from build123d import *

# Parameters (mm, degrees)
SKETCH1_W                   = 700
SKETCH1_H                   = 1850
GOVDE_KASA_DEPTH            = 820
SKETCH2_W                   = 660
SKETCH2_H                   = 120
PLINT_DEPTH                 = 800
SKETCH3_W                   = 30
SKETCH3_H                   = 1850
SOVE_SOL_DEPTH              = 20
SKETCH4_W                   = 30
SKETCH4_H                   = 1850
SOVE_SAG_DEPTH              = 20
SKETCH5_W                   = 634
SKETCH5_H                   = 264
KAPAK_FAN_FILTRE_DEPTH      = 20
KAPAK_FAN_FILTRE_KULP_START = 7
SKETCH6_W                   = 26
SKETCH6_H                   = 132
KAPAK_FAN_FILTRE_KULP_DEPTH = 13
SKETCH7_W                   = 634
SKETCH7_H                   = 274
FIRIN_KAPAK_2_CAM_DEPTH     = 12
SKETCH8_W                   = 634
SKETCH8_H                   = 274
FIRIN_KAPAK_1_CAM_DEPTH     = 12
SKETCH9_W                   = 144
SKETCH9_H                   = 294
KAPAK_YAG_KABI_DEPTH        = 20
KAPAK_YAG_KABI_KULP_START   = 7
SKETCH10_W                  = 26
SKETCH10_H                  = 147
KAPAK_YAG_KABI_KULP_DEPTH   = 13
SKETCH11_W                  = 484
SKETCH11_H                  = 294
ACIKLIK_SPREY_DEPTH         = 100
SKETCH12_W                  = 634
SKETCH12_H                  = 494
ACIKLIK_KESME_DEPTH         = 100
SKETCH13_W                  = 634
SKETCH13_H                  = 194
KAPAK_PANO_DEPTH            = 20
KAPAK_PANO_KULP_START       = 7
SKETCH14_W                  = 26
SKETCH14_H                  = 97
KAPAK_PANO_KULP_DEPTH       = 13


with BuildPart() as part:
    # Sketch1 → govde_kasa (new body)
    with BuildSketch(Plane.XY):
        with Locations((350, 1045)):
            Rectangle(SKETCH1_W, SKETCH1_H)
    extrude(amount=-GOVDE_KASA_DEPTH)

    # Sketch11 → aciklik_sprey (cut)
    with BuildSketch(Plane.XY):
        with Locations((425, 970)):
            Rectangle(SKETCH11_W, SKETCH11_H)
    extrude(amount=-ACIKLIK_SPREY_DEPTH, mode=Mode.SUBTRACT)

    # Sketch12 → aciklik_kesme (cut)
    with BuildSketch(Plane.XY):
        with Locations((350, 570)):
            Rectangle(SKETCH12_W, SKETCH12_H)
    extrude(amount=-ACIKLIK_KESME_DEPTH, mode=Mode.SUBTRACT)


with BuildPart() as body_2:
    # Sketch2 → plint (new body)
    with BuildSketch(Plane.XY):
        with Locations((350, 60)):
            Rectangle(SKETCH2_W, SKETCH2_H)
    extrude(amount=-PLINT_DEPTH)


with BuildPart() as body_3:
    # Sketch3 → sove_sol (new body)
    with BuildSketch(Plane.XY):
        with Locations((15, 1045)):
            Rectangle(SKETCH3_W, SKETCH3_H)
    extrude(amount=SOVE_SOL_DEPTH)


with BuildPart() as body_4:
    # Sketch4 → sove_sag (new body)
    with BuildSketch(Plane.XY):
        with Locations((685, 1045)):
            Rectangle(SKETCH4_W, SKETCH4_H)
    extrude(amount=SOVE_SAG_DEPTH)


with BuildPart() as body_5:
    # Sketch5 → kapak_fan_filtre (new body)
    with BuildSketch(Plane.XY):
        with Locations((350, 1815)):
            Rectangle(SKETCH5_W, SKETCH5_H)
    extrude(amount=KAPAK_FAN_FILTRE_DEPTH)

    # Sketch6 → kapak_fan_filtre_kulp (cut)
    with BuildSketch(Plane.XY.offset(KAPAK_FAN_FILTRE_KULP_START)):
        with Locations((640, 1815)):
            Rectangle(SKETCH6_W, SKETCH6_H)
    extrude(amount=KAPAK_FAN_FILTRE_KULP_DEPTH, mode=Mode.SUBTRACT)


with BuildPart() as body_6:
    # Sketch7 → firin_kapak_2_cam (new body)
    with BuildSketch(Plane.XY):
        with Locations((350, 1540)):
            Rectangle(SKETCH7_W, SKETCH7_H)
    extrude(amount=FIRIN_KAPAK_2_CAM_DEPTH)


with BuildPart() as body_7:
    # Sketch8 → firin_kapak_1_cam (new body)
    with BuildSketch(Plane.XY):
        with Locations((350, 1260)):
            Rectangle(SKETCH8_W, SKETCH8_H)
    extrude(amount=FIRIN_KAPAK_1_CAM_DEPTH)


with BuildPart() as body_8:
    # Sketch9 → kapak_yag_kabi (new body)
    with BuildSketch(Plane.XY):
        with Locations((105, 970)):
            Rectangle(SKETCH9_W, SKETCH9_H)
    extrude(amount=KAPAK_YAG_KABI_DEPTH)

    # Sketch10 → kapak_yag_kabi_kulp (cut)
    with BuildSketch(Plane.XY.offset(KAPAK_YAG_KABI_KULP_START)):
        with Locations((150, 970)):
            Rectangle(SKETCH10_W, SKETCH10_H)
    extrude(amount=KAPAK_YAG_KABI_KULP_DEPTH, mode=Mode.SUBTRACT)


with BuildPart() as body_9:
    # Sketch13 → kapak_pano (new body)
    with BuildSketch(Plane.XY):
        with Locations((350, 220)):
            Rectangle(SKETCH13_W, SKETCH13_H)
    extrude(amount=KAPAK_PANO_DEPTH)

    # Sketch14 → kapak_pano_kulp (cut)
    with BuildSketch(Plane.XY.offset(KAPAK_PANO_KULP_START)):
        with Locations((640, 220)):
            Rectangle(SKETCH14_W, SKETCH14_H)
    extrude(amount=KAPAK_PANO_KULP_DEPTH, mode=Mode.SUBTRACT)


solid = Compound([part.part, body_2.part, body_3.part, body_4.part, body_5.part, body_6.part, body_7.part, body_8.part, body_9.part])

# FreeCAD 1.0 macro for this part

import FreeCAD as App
import Part
import Sketcher

V = App.Vector

doc = App.newDocument("Part")
params = doc.addObject("Spreadsheet::Sheet", "Params")
for row, (alias, value) in enumerate([
    ("sketch1_width", "700 mm"),
    ("sketch1_height", "1850 mm"),
    ("pad1_length", "820 mm"),
    ("sketch2_width", "484 mm"),
    ("sketch2_height", "294 mm"),
    ("pocket1_length", "100 mm"),
    ("sketch3_width", "634 mm"),
    ("sketch3_height", "494 mm"),
    ("pocket2_length", "100 mm"),
    ("sketch4_width", "660 mm"),
    ("sketch4_height", "120 mm"),
    ("pad2_length", "800 mm"),
    ("sketch5_width", "30 mm"),
    ("sketch5_height", "1850 mm"),
    ("pad3_length", "20 mm"),
    ("sketch6_width", "30 mm"),
    ("sketch6_height", "1850 mm"),
    ("pad4_length", "20 mm"),
    ("sketch7_width", "634 mm"),
    ("sketch7_height", "264 mm"),
    ("pad5_length", "20 mm"),
    ("sketch8_width", "26 mm"),
    ("sketch8_height", "132 mm"),
    ("pocket3_length", "13 mm"),
    ("sketch9_width", "634 mm"),
    ("sketch9_height", "274 mm"),
    ("pad6_length", "12 mm"),
    ("sketch10_width", "634 mm"),
    ("sketch10_height", "274 mm"),
    ("pad7_length", "12 mm"),
    ("sketch11_width", "144 mm"),
    ("sketch11_height", "294 mm"),
    ("pad8_length", "20 mm"),
    ("sketch12_width", "26 mm"),
    ("sketch12_height", "147 mm"),
    ("pocket4_length", "13 mm"),
    ("sketch13_width", "634 mm"),
    ("sketch13_height", "194 mm"),
    ("pad9_length", "20 mm"),
    ("sketch14_width", "26 mm"),
    ("sketch14_height", "97 mm"),
    ("pocket5_length", "13 mm"),
], start=1):
    params.set(f"A{row}", alias)
    params.set(f"B{row}", "=" + value)
    params.setAlias(f"B{row}", alias)

body = doc.addObject("PartDesign::Body", "Body")

# Sketch on XY plane
sketch1 = doc.addObject("Sketcher::SketchObject", "Sketch")
body.addObject(sketch1)
sketch1.AttachmentSupport = (doc.XY_Plane, [""])
sketch1.MapMode = "FlatFace"
sketch1.addGeometry(Part.LineSegment(V(0, 1970, 0), V(0, 120, 0)), False)
sketch1.addGeometry(Part.LineSegment(V(0, 120, 0), V(700, 120, 0)), False)
sketch1.addGeometry(Part.LineSegment(V(700, 120, 0), V(700, 1970, 0)), False)
sketch1.addGeometry(Part.LineSegment(V(700, 1970, 0), V(0, 1970, 0)), False)
sketch1.addConstraint(Sketcher.Constraint("Coincident", 0, 2, 1, 1))
sketch1.addConstraint(Sketcher.Constraint("Coincident", 1, 2, 2, 1))
sketch1.addConstraint(Sketcher.Constraint("Coincident", 2, 2, 3, 1))
sketch1.addConstraint(Sketcher.Constraint("Coincident", 3, 2, 0, 1))
sketch1.addConstraint(Sketcher.Constraint("Vertical", 0))
sketch1.addConstraint(Sketcher.Constraint("Horizontal", 1))
sketch1.addConstraint(Sketcher.Constraint("Vertical", 2))
sketch1.addConstraint(Sketcher.Constraint("Horizontal", 3))
sketch1.addConstraint(Sketcher.Constraint("PointOnObject", 0, 2, -2))
sketch1.addConstraint(Sketcher.Constraint("DistanceX", 1, 1, 1, 2, 700.0))
sketch1.addConstraint(Sketcher.Constraint("DistanceY", 0, 2, 0, 1, 1850.0))
sketch1.addConstraint(Sketcher.Constraint("DistanceY", -1, 1, 0, 2, 120.0))
sketch1.setExpression("Constraints[9]", "Params.sketch1_width")
sketch1.setExpression("Constraints[10]", "Params.sketch1_height")
pad1 = doc.addObject("PartDesign::Pad", "Pad")
body.addObject(pad1)
pad1.Profile = sketch1
pad1.setExpression("Length", "Params.pad1_length")
pad1.Reversed = True

# Sketch on XY plane
sketch2 = doc.addObject("Sketcher::SketchObject", "Sketch001")
body.addObject(sketch2)
sketch2.AttachmentSupport = (doc.XY_Plane, [""])
sketch2.MapMode = "FlatFace"
sketch2.addGeometry(Part.LineSegment(V(183, 1117, 0), V(183, 823, 0)), False)
sketch2.addGeometry(Part.LineSegment(V(183, 823, 0), V(667, 823, 0)), False)
sketch2.addGeometry(Part.LineSegment(V(667, 823, 0), V(667, 1117, 0)), False)
sketch2.addGeometry(Part.LineSegment(V(667, 1117, 0), V(183, 1117, 0)), False)
sketch2.addConstraint(Sketcher.Constraint("Coincident", 0, 2, 1, 1))
sketch2.addConstraint(Sketcher.Constraint("Coincident", 1, 2, 2, 1))
sketch2.addConstraint(Sketcher.Constraint("Coincident", 2, 2, 3, 1))
sketch2.addConstraint(Sketcher.Constraint("Coincident", 3, 2, 0, 1))
sketch2.addConstraint(Sketcher.Constraint("Vertical", 0))
sketch2.addConstraint(Sketcher.Constraint("Horizontal", 1))
sketch2.addConstraint(Sketcher.Constraint("Vertical", 2))
sketch2.addConstraint(Sketcher.Constraint("Horizontal", 3))
sketch2.addConstraint(Sketcher.Constraint("DistanceX", 1, 1, 1, 2, 484.0))
sketch2.addConstraint(Sketcher.Constraint("DistanceY", 0, 2, 0, 1, 294.0))
sketch2.addConstraint(Sketcher.Constraint("DistanceX", -1, 1, 0, 2, 183.0))
sketch2.addConstraint(Sketcher.Constraint("DistanceY", -1, 1, 0, 2, 823.0))
sketch2.setExpression("Constraints[8]", "Params.sketch2_width")
sketch2.setExpression("Constraints[9]", "Params.sketch2_height")
pocket1 = doc.addObject("PartDesign::Pocket", "Pocket")
body.addObject(pocket1)
pocket1.Profile = sketch2
pocket1.setExpression("Length", "Params.pocket1_length")

# Sketch on XY plane
sketch3 = doc.addObject("Sketcher::SketchObject", "Sketch002")
body.addObject(sketch3)
sketch3.AttachmentSupport = (doc.XY_Plane, [""])
sketch3.MapMode = "FlatFace"
sketch3.addGeometry(Part.LineSegment(V(33, 817, 0), V(33, 323, 0)), False)
sketch3.addGeometry(Part.LineSegment(V(33, 323, 0), V(667, 323, 0)), False)
sketch3.addGeometry(Part.LineSegment(V(667, 323, 0), V(667, 817, 0)), False)
sketch3.addGeometry(Part.LineSegment(V(667, 817, 0), V(33, 817, 0)), False)
sketch3.addConstraint(Sketcher.Constraint("Coincident", 0, 2, 1, 1))
sketch3.addConstraint(Sketcher.Constraint("Coincident", 1, 2, 2, 1))
sketch3.addConstraint(Sketcher.Constraint("Coincident", 2, 2, 3, 1))
sketch3.addConstraint(Sketcher.Constraint("Coincident", 3, 2, 0, 1))
sketch3.addConstraint(Sketcher.Constraint("Vertical", 0))
sketch3.addConstraint(Sketcher.Constraint("Horizontal", 1))
sketch3.addConstraint(Sketcher.Constraint("Vertical", 2))
sketch3.addConstraint(Sketcher.Constraint("Horizontal", 3))
sketch3.addConstraint(Sketcher.Constraint("DistanceX", 1, 1, 1, 2, 634.0))
sketch3.addConstraint(Sketcher.Constraint("DistanceY", 0, 2, 0, 1, 494.0))
sketch3.addConstraint(Sketcher.Constraint("DistanceX", -1, 1, 0, 2, 33.0))
sketch3.addConstraint(Sketcher.Constraint("DistanceY", -1, 1, 0, 2, 323.0))
sketch3.setExpression("Constraints[8]", "Params.sketch3_width")
sketch3.setExpression("Constraints[9]", "Params.sketch3_height")
pocket2 = doc.addObject("PartDesign::Pocket", "Pocket001")
body.addObject(pocket2)
pocket2.Profile = sketch3
pocket2.setExpression("Length", "Params.pocket2_length")
body2 = doc.addObject("PartDesign::Body", "Body001")

# Sketch on XY plane
sketch4 = doc.addObject("Sketcher::SketchObject", "Sketch003")
body2.addObject(sketch4)
sketch4.AttachmentSupport = (doc.getObject("XY_Plane001"), [""])
sketch4.MapMode = "FlatFace"
sketch4.addGeometry(Part.LineSegment(V(20, 120, 0), V(20, 0, 0)), False)
sketch4.addGeometry(Part.LineSegment(V(20, 0, 0), V(680, 0, 0)), False)
sketch4.addGeometry(Part.LineSegment(V(680, 0, 0), V(680, 120, 0)), False)
sketch4.addGeometry(Part.LineSegment(V(680, 120, 0), V(20, 120, 0)), False)
sketch4.addConstraint(Sketcher.Constraint("Coincident", 0, 2, 1, 1))
sketch4.addConstraint(Sketcher.Constraint("Coincident", 1, 2, 2, 1))
sketch4.addConstraint(Sketcher.Constraint("Coincident", 2, 2, 3, 1))
sketch4.addConstraint(Sketcher.Constraint("Coincident", 3, 2, 0, 1))
sketch4.addConstraint(Sketcher.Constraint("Vertical", 0))
sketch4.addConstraint(Sketcher.Constraint("Horizontal", 1))
sketch4.addConstraint(Sketcher.Constraint("Vertical", 2))
sketch4.addConstraint(Sketcher.Constraint("Horizontal", 3))
sketch4.addConstraint(Sketcher.Constraint("PointOnObject", 0, 2, -1))
sketch4.addConstraint(Sketcher.Constraint("DistanceX", 1, 1, 1, 2, 660.0))
sketch4.addConstraint(Sketcher.Constraint("DistanceY", 0, 2, 0, 1, 120.0))
sketch4.addConstraint(Sketcher.Constraint("DistanceX", -1, 1, 0, 2, 20.0))
sketch4.setExpression("Constraints[9]", "Params.sketch4_width")
sketch4.setExpression("Constraints[10]", "Params.sketch4_height")
pad2 = doc.addObject("PartDesign::Pad", "Pad001")
body2.addObject(pad2)
pad2.Profile = sketch4
pad2.setExpression("Length", "Params.pad2_length")
pad2.Reversed = True
body3 = doc.addObject("PartDesign::Body", "Body002")

# Sketch on XY plane
sketch5 = doc.addObject("Sketcher::SketchObject", "Sketch004")
body3.addObject(sketch5)
sketch5.AttachmentSupport = (doc.getObject("XY_Plane002"), [""])
sketch5.MapMode = "FlatFace"
sketch5.addGeometry(Part.LineSegment(V(0, 1970, 0), V(0, 120, 0)), False)
sketch5.addGeometry(Part.LineSegment(V(0, 120, 0), V(30, 120, 0)), False)
sketch5.addGeometry(Part.LineSegment(V(30, 120, 0), V(30, 1970, 0)), False)
sketch5.addGeometry(Part.LineSegment(V(30, 1970, 0), V(0, 1970, 0)), False)
sketch5.addConstraint(Sketcher.Constraint("Coincident", 0, 2, 1, 1))
sketch5.addConstraint(Sketcher.Constraint("Coincident", 1, 2, 2, 1))
sketch5.addConstraint(Sketcher.Constraint("Coincident", 2, 2, 3, 1))
sketch5.addConstraint(Sketcher.Constraint("Coincident", 3, 2, 0, 1))
sketch5.addConstraint(Sketcher.Constraint("Vertical", 0))
sketch5.addConstraint(Sketcher.Constraint("Horizontal", 1))
sketch5.addConstraint(Sketcher.Constraint("Vertical", 2))
sketch5.addConstraint(Sketcher.Constraint("Horizontal", 3))
sketch5.addConstraint(Sketcher.Constraint("PointOnObject", 0, 2, -2))
sketch5.addConstraint(Sketcher.Constraint("DistanceX", 1, 1, 1, 2, 30.0))
sketch5.addConstraint(Sketcher.Constraint("DistanceY", 0, 2, 0, 1, 1850.0))
sketch5.addConstraint(Sketcher.Constraint("DistanceY", -1, 1, 0, 2, 120.0))
sketch5.setExpression("Constraints[9]", "Params.sketch5_width")
sketch5.setExpression("Constraints[10]", "Params.sketch5_height")
pad3 = doc.addObject("PartDesign::Pad", "Pad002")
body3.addObject(pad3)
pad3.Profile = sketch5
pad3.setExpression("Length", "Params.pad3_length")
body4 = doc.addObject("PartDesign::Body", "Body003")

# Sketch on XY plane
sketch6 = doc.addObject("Sketcher::SketchObject", "Sketch005")
body4.addObject(sketch6)
sketch6.AttachmentSupport = (doc.getObject("XY_Plane003"), [""])
sketch6.MapMode = "FlatFace"
sketch6.addGeometry(Part.LineSegment(V(670, 1970, 0), V(670, 120, 0)), False)
sketch6.addGeometry(Part.LineSegment(V(670, 120, 0), V(700, 120, 0)), False)
sketch6.addGeometry(Part.LineSegment(V(700, 120, 0), V(700, 1970, 0)), False)
sketch6.addGeometry(Part.LineSegment(V(700, 1970, 0), V(670, 1970, 0)), False)
sketch6.addConstraint(Sketcher.Constraint("Coincident", 0, 2, 1, 1))
sketch6.addConstraint(Sketcher.Constraint("Coincident", 1, 2, 2, 1))
sketch6.addConstraint(Sketcher.Constraint("Coincident", 2, 2, 3, 1))
sketch6.addConstraint(Sketcher.Constraint("Coincident", 3, 2, 0, 1))
sketch6.addConstraint(Sketcher.Constraint("Vertical", 0))
sketch6.addConstraint(Sketcher.Constraint("Horizontal", 1))
sketch6.addConstraint(Sketcher.Constraint("Vertical", 2))
sketch6.addConstraint(Sketcher.Constraint("Horizontal", 3))
sketch6.addConstraint(Sketcher.Constraint("DistanceX", 1, 1, 1, 2, 30.0))
sketch6.addConstraint(Sketcher.Constraint("DistanceY", 0, 2, 0, 1, 1850.0))
sketch6.addConstraint(Sketcher.Constraint("DistanceX", -1, 1, 0, 2, 670.0))
sketch6.addConstraint(Sketcher.Constraint("DistanceY", -1, 1, 0, 2, 120.0))
sketch6.setExpression("Constraints[8]", "Params.sketch6_width")
sketch6.setExpression("Constraints[9]", "Params.sketch6_height")
pad4 = doc.addObject("PartDesign::Pad", "Pad003")
body4.addObject(pad4)
pad4.Profile = sketch6
pad4.setExpression("Length", "Params.pad4_length")
body5 = doc.addObject("PartDesign::Body", "Body004")

# Sketch on XY plane
sketch7 = doc.addObject("Sketcher::SketchObject", "Sketch006")
body5.addObject(sketch7)
sketch7.AttachmentSupport = (doc.getObject("XY_Plane004"), [""])
sketch7.MapMode = "FlatFace"
sketch7.addGeometry(Part.LineSegment(V(33, 1947, 0), V(33, 1683, 0)), False)
sketch7.addGeometry(Part.LineSegment(V(33, 1683, 0), V(667, 1683, 0)), False)
sketch7.addGeometry(Part.LineSegment(V(667, 1683, 0), V(667, 1947, 0)), False)
sketch7.addGeometry(Part.LineSegment(V(667, 1947, 0), V(33, 1947, 0)), False)
sketch7.addConstraint(Sketcher.Constraint("Coincident", 0, 2, 1, 1))
sketch7.addConstraint(Sketcher.Constraint("Coincident", 1, 2, 2, 1))
sketch7.addConstraint(Sketcher.Constraint("Coincident", 2, 2, 3, 1))
sketch7.addConstraint(Sketcher.Constraint("Coincident", 3, 2, 0, 1))
sketch7.addConstraint(Sketcher.Constraint("Vertical", 0))
sketch7.addConstraint(Sketcher.Constraint("Horizontal", 1))
sketch7.addConstraint(Sketcher.Constraint("Vertical", 2))
sketch7.addConstraint(Sketcher.Constraint("Horizontal", 3))
sketch7.addConstraint(Sketcher.Constraint("DistanceX", 1, 1, 1, 2, 634.0))
sketch7.addConstraint(Sketcher.Constraint("DistanceY", 0, 2, 0, 1, 264.0))
sketch7.addConstraint(Sketcher.Constraint("DistanceX", -1, 1, 0, 2, 33.0))
sketch7.addConstraint(Sketcher.Constraint("DistanceY", -1, 1, 0, 2, 1683.0))
sketch7.setExpression("Constraints[8]", "Params.sketch7_width")
sketch7.setExpression("Constraints[9]", "Params.sketch7_height")
pad5 = doc.addObject("PartDesign::Pad", "Pad004")
body5.addObject(pad5)
pad5.Profile = sketch7
pad5.setExpression("Length", "Params.pad5_length")

# Sketch on XY plane
sketch8 = doc.addObject("Sketcher::SketchObject", "Sketch007")
body5.addObject(sketch8)
sketch8.AttachmentSupport = (doc.getObject("XY_Plane004"), [""])
sketch8.MapMode = "FlatFace"
sketch8.AttachmentOffset = App.Placement(V(0, 0, 7), App.Rotation())
sketch8.addGeometry(Part.LineSegment(V(627, 1881, 0), V(627, 1749, 0)), False)
sketch8.addGeometry(Part.LineSegment(V(627, 1749, 0), V(653, 1749, 0)), False)
sketch8.addGeometry(Part.LineSegment(V(653, 1749, 0), V(653, 1881, 0)), False)
sketch8.addGeometry(Part.LineSegment(V(653, 1881, 0), V(627, 1881, 0)), False)
sketch8.addConstraint(Sketcher.Constraint("Coincident", 0, 2, 1, 1))
sketch8.addConstraint(Sketcher.Constraint("Coincident", 1, 2, 2, 1))
sketch8.addConstraint(Sketcher.Constraint("Coincident", 2, 2, 3, 1))
sketch8.addConstraint(Sketcher.Constraint("Coincident", 3, 2, 0, 1))
sketch8.addConstraint(Sketcher.Constraint("Vertical", 0))
sketch8.addConstraint(Sketcher.Constraint("Horizontal", 1))
sketch8.addConstraint(Sketcher.Constraint("Vertical", 2))
sketch8.addConstraint(Sketcher.Constraint("Horizontal", 3))
sketch8.addConstraint(Sketcher.Constraint("DistanceX", 1, 1, 1, 2, 26.0))
sketch8.addConstraint(Sketcher.Constraint("DistanceY", 0, 2, 0, 1, 132.0))
sketch8.addConstraint(Sketcher.Constraint("DistanceX", -1, 1, 0, 2, 627.0))
sketch8.addConstraint(Sketcher.Constraint("DistanceY", -1, 1, 0, 2, 1749.0))
sketch8.setExpression("Constraints[8]", "Params.sketch8_width")
sketch8.setExpression("Constraints[9]", "Params.sketch8_height")
pocket3 = doc.addObject("PartDesign::Pocket", "Pocket002")
body5.addObject(pocket3)
pocket3.Profile = sketch8
pocket3.setExpression("Length", "Params.pocket3_length")
pocket3.Reversed = True
body6 = doc.addObject("PartDesign::Body", "Body005")

# Sketch on XY plane
sketch9 = doc.addObject("Sketcher::SketchObject", "Sketch008")
body6.addObject(sketch9)
sketch9.AttachmentSupport = (doc.getObject("XY_Plane005"), [""])
sketch9.MapMode = "FlatFace"
sketch9.addGeometry(Part.LineSegment(V(33, 1677, 0), V(33, 1403, 0)), False)
sketch9.addGeometry(Part.LineSegment(V(33, 1403, 0), V(667, 1403, 0)), False)
sketch9.addGeometry(Part.LineSegment(V(667, 1403, 0), V(667, 1677, 0)), False)
sketch9.addGeometry(Part.LineSegment(V(667, 1677, 0), V(33, 1677, 0)), False)
sketch9.addConstraint(Sketcher.Constraint("Coincident", 0, 2, 1, 1))
sketch9.addConstraint(Sketcher.Constraint("Coincident", 1, 2, 2, 1))
sketch9.addConstraint(Sketcher.Constraint("Coincident", 2, 2, 3, 1))
sketch9.addConstraint(Sketcher.Constraint("Coincident", 3, 2, 0, 1))
sketch9.addConstraint(Sketcher.Constraint("Vertical", 0))
sketch9.addConstraint(Sketcher.Constraint("Horizontal", 1))
sketch9.addConstraint(Sketcher.Constraint("Vertical", 2))
sketch9.addConstraint(Sketcher.Constraint("Horizontal", 3))
sketch9.addConstraint(Sketcher.Constraint("DistanceX", 1, 1, 1, 2, 634.0))
sketch9.addConstraint(Sketcher.Constraint("DistanceY", 0, 2, 0, 1, 274.0))
sketch9.addConstraint(Sketcher.Constraint("DistanceX", -1, 1, 0, 2, 33.0))
sketch9.addConstraint(Sketcher.Constraint("DistanceY", -1, 1, 0, 2, 1403.0))
sketch9.setExpression("Constraints[8]", "Params.sketch9_width")
sketch9.setExpression("Constraints[9]", "Params.sketch9_height")
pad6 = doc.addObject("PartDesign::Pad", "Pad005")
body6.addObject(pad6)
pad6.Profile = sketch9
pad6.setExpression("Length", "Params.pad6_length")
body7 = doc.addObject("PartDesign::Body", "Body006")

# Sketch on XY plane
sketch10 = doc.addObject("Sketcher::SketchObject", "Sketch009")
body7.addObject(sketch10)
sketch10.AttachmentSupport = (doc.getObject("XY_Plane006"), [""])
sketch10.MapMode = "FlatFace"
sketch10.addGeometry(Part.LineSegment(V(33, 1397, 0), V(33, 1123, 0)), False)
sketch10.addGeometry(Part.LineSegment(V(33, 1123, 0), V(667, 1123, 0)), False)
sketch10.addGeometry(Part.LineSegment(V(667, 1123, 0), V(667, 1397, 0)), False)
sketch10.addGeometry(Part.LineSegment(V(667, 1397, 0), V(33, 1397, 0)), False)
sketch10.addConstraint(Sketcher.Constraint("Coincident", 0, 2, 1, 1))
sketch10.addConstraint(Sketcher.Constraint("Coincident", 1, 2, 2, 1))
sketch10.addConstraint(Sketcher.Constraint("Coincident", 2, 2, 3, 1))
sketch10.addConstraint(Sketcher.Constraint("Coincident", 3, 2, 0, 1))
sketch10.addConstraint(Sketcher.Constraint("Vertical", 0))
sketch10.addConstraint(Sketcher.Constraint("Horizontal", 1))
sketch10.addConstraint(Sketcher.Constraint("Vertical", 2))
sketch10.addConstraint(Sketcher.Constraint("Horizontal", 3))
sketch10.addConstraint(Sketcher.Constraint("DistanceX", 1, 1, 1, 2, 634.0))
sketch10.addConstraint(Sketcher.Constraint("DistanceY", 0, 2, 0, 1, 274.0))
sketch10.addConstraint(Sketcher.Constraint("DistanceX", -1, 1, 0, 2, 33.0))
sketch10.addConstraint(Sketcher.Constraint("DistanceY", -1, 1, 0, 2, 1123.0))
sketch10.setExpression("Constraints[8]", "Params.sketch10_width")
sketch10.setExpression("Constraints[9]", "Params.sketch10_height")
pad7 = doc.addObject("PartDesign::Pad", "Pad006")
body7.addObject(pad7)
pad7.Profile = sketch10
pad7.setExpression("Length", "Params.pad7_length")
body8 = doc.addObject("PartDesign::Body", "Body007")

# Sketch on XY plane
sketch11 = doc.addObject("Sketcher::SketchObject", "Sketch010")
body8.addObject(sketch11)
sketch11.AttachmentSupport = (doc.getObject("XY_Plane007"), [""])
sketch11.MapMode = "FlatFace"
sketch11.addGeometry(Part.LineSegment(V(33, 1117, 0), V(33, 823, 0)), False)
sketch11.addGeometry(Part.LineSegment(V(33, 823, 0), V(177, 823, 0)), False)
sketch11.addGeometry(Part.LineSegment(V(177, 823, 0), V(177, 1117, 0)), False)
sketch11.addGeometry(Part.LineSegment(V(177, 1117, 0), V(33, 1117, 0)), False)
sketch11.addConstraint(Sketcher.Constraint("Coincident", 0, 2, 1, 1))
sketch11.addConstraint(Sketcher.Constraint("Coincident", 1, 2, 2, 1))
sketch11.addConstraint(Sketcher.Constraint("Coincident", 2, 2, 3, 1))
sketch11.addConstraint(Sketcher.Constraint("Coincident", 3, 2, 0, 1))
sketch11.addConstraint(Sketcher.Constraint("Vertical", 0))
sketch11.addConstraint(Sketcher.Constraint("Horizontal", 1))
sketch11.addConstraint(Sketcher.Constraint("Vertical", 2))
sketch11.addConstraint(Sketcher.Constraint("Horizontal", 3))
sketch11.addConstraint(Sketcher.Constraint("DistanceX", 1, 1, 1, 2, 144.0))
sketch11.addConstraint(Sketcher.Constraint("DistanceY", 0, 2, 0, 1, 294.0))
sketch11.addConstraint(Sketcher.Constraint("DistanceX", -1, 1, 0, 2, 33.0))
sketch11.addConstraint(Sketcher.Constraint("DistanceY", -1, 1, 0, 2, 823.0))
sketch11.setExpression("Constraints[8]", "Params.sketch11_width")
sketch11.setExpression("Constraints[9]", "Params.sketch11_height")
pad8 = doc.addObject("PartDesign::Pad", "Pad007")
body8.addObject(pad8)
pad8.Profile = sketch11
pad8.setExpression("Length", "Params.pad8_length")

# Sketch on XY plane
sketch12 = doc.addObject("Sketcher::SketchObject", "Sketch011")
body8.addObject(sketch12)
sketch12.AttachmentSupport = (doc.getObject("XY_Plane007"), [""])
sketch12.MapMode = "FlatFace"
sketch12.AttachmentOffset = App.Placement(V(0, 0, 7), App.Rotation())
sketch12.addGeometry(Part.LineSegment(V(137, 1044, 0), V(137, 896, 0)), False)
sketch12.addGeometry(Part.LineSegment(V(137, 896, 0), V(163, 896, 0)), False)
sketch12.addGeometry(Part.LineSegment(V(163, 896, 0), V(163, 1044, 0)), False)
sketch12.addGeometry(Part.LineSegment(V(163, 1044, 0), V(137, 1044, 0)), False)
sketch12.addConstraint(Sketcher.Constraint("Coincident", 0, 2, 1, 1))
sketch12.addConstraint(Sketcher.Constraint("Coincident", 1, 2, 2, 1))
sketch12.addConstraint(Sketcher.Constraint("Coincident", 2, 2, 3, 1))
sketch12.addConstraint(Sketcher.Constraint("Coincident", 3, 2, 0, 1))
sketch12.addConstraint(Sketcher.Constraint("Vertical", 0))
sketch12.addConstraint(Sketcher.Constraint("Horizontal", 1))
sketch12.addConstraint(Sketcher.Constraint("Vertical", 2))
sketch12.addConstraint(Sketcher.Constraint("Horizontal", 3))
sketch12.addConstraint(Sketcher.Constraint("DistanceX", 1, 1, 1, 2, 26.0))
sketch12.addConstraint(Sketcher.Constraint("DistanceY", 0, 2, 0, 1, 147.0))
sketch12.addConstraint(Sketcher.Constraint("DistanceX", -1, 1, 0, 2, 137.0))
sketch12.addConstraint(Sketcher.Constraint("DistanceY", -1, 1, 0, 2, 896.5))
sketch12.setExpression("Constraints[8]", "Params.sketch12_width")
sketch12.setExpression("Constraints[9]", "Params.sketch12_height")
pocket4 = doc.addObject("PartDesign::Pocket", "Pocket003")
body8.addObject(pocket4)
pocket4.Profile = sketch12
pocket4.setExpression("Length", "Params.pocket4_length")
pocket4.Reversed = True
body9 = doc.addObject("PartDesign::Body", "Body008")

# Sketch on XY plane
sketch13 = doc.addObject("Sketcher::SketchObject", "Sketch012")
body9.addObject(sketch13)
sketch13.AttachmentSupport = (doc.getObject("XY_Plane008"), [""])
sketch13.MapMode = "FlatFace"
sketch13.addGeometry(Part.LineSegment(V(33, 317, 0), V(33, 123, 0)), False)
sketch13.addGeometry(Part.LineSegment(V(33, 123, 0), V(667, 123, 0)), False)
sketch13.addGeometry(Part.LineSegment(V(667, 123, 0), V(667, 317, 0)), False)
sketch13.addGeometry(Part.LineSegment(V(667, 317, 0), V(33, 317, 0)), False)
sketch13.addConstraint(Sketcher.Constraint("Coincident", 0, 2, 1, 1))
sketch13.addConstraint(Sketcher.Constraint("Coincident", 1, 2, 2, 1))
sketch13.addConstraint(Sketcher.Constraint("Coincident", 2, 2, 3, 1))
sketch13.addConstraint(Sketcher.Constraint("Coincident", 3, 2, 0, 1))
sketch13.addConstraint(Sketcher.Constraint("Vertical", 0))
sketch13.addConstraint(Sketcher.Constraint("Horizontal", 1))
sketch13.addConstraint(Sketcher.Constraint("Vertical", 2))
sketch13.addConstraint(Sketcher.Constraint("Horizontal", 3))
sketch13.addConstraint(Sketcher.Constraint("DistanceX", 1, 1, 1, 2, 634.0))
sketch13.addConstraint(Sketcher.Constraint("DistanceY", 0, 2, 0, 1, 194.0))
sketch13.addConstraint(Sketcher.Constraint("DistanceX", -1, 1, 0, 2, 33.0))
sketch13.addConstraint(Sketcher.Constraint("DistanceY", -1, 1, 0, 2, 123.0))
sketch13.setExpression("Constraints[8]", "Params.sketch13_width")
sketch13.setExpression("Constraints[9]", "Params.sketch13_height")
pad9 = doc.addObject("PartDesign::Pad", "Pad008")
body9.addObject(pad9)
pad9.Profile = sketch13
pad9.setExpression("Length", "Params.pad9_length")

# Sketch on XY plane
sketch14 = doc.addObject("Sketcher::SketchObject", "Sketch013")
body9.addObject(sketch14)
sketch14.AttachmentSupport = (doc.getObject("XY_Plane008"), [""])
sketch14.MapMode = "FlatFace"
sketch14.AttachmentOffset = App.Placement(V(0, 0, 7), App.Rotation())
sketch14.addGeometry(Part.LineSegment(V(627, 268, 0), V(627, 172, 0)), False)
sketch14.addGeometry(Part.LineSegment(V(627, 172, 0), V(653, 172, 0)), False)
sketch14.addGeometry(Part.LineSegment(V(653, 172, 0), V(653, 268, 0)), False)
sketch14.addGeometry(Part.LineSegment(V(653, 268, 0), V(627, 268, 0)), False)
sketch14.addConstraint(Sketcher.Constraint("Coincident", 0, 2, 1, 1))
sketch14.addConstraint(Sketcher.Constraint("Coincident", 1, 2, 2, 1))
sketch14.addConstraint(Sketcher.Constraint("Coincident", 2, 2, 3, 1))
sketch14.addConstraint(Sketcher.Constraint("Coincident", 3, 2, 0, 1))
sketch14.addConstraint(Sketcher.Constraint("Vertical", 0))
sketch14.addConstraint(Sketcher.Constraint("Horizontal", 1))
sketch14.addConstraint(Sketcher.Constraint("Vertical", 2))
sketch14.addConstraint(Sketcher.Constraint("Horizontal", 3))
sketch14.addConstraint(Sketcher.Constraint("DistanceX", 1, 1, 1, 2, 26.0))
sketch14.addConstraint(Sketcher.Constraint("DistanceY", 0, 2, 0, 1, 97.0))
sketch14.addConstraint(Sketcher.Constraint("DistanceX", -1, 1, 0, 2, 627.0))
sketch14.addConstraint(Sketcher.Constraint("DistanceY", -1, 1, 0, 2, 171.5))
sketch14.setExpression("Constraints[8]", "Params.sketch14_width")
sketch14.setExpression("Constraints[9]", "Params.sketch14_height")
pocket5 = doc.addObject("PartDesign::Pocket", "Pocket004")
body9.addObject(pocket5)
pocket5.Profile = sketch14
pocket5.setExpression("Length", "Params.pocket5_length")
pocket5.Reversed = True

doc.recompute()
